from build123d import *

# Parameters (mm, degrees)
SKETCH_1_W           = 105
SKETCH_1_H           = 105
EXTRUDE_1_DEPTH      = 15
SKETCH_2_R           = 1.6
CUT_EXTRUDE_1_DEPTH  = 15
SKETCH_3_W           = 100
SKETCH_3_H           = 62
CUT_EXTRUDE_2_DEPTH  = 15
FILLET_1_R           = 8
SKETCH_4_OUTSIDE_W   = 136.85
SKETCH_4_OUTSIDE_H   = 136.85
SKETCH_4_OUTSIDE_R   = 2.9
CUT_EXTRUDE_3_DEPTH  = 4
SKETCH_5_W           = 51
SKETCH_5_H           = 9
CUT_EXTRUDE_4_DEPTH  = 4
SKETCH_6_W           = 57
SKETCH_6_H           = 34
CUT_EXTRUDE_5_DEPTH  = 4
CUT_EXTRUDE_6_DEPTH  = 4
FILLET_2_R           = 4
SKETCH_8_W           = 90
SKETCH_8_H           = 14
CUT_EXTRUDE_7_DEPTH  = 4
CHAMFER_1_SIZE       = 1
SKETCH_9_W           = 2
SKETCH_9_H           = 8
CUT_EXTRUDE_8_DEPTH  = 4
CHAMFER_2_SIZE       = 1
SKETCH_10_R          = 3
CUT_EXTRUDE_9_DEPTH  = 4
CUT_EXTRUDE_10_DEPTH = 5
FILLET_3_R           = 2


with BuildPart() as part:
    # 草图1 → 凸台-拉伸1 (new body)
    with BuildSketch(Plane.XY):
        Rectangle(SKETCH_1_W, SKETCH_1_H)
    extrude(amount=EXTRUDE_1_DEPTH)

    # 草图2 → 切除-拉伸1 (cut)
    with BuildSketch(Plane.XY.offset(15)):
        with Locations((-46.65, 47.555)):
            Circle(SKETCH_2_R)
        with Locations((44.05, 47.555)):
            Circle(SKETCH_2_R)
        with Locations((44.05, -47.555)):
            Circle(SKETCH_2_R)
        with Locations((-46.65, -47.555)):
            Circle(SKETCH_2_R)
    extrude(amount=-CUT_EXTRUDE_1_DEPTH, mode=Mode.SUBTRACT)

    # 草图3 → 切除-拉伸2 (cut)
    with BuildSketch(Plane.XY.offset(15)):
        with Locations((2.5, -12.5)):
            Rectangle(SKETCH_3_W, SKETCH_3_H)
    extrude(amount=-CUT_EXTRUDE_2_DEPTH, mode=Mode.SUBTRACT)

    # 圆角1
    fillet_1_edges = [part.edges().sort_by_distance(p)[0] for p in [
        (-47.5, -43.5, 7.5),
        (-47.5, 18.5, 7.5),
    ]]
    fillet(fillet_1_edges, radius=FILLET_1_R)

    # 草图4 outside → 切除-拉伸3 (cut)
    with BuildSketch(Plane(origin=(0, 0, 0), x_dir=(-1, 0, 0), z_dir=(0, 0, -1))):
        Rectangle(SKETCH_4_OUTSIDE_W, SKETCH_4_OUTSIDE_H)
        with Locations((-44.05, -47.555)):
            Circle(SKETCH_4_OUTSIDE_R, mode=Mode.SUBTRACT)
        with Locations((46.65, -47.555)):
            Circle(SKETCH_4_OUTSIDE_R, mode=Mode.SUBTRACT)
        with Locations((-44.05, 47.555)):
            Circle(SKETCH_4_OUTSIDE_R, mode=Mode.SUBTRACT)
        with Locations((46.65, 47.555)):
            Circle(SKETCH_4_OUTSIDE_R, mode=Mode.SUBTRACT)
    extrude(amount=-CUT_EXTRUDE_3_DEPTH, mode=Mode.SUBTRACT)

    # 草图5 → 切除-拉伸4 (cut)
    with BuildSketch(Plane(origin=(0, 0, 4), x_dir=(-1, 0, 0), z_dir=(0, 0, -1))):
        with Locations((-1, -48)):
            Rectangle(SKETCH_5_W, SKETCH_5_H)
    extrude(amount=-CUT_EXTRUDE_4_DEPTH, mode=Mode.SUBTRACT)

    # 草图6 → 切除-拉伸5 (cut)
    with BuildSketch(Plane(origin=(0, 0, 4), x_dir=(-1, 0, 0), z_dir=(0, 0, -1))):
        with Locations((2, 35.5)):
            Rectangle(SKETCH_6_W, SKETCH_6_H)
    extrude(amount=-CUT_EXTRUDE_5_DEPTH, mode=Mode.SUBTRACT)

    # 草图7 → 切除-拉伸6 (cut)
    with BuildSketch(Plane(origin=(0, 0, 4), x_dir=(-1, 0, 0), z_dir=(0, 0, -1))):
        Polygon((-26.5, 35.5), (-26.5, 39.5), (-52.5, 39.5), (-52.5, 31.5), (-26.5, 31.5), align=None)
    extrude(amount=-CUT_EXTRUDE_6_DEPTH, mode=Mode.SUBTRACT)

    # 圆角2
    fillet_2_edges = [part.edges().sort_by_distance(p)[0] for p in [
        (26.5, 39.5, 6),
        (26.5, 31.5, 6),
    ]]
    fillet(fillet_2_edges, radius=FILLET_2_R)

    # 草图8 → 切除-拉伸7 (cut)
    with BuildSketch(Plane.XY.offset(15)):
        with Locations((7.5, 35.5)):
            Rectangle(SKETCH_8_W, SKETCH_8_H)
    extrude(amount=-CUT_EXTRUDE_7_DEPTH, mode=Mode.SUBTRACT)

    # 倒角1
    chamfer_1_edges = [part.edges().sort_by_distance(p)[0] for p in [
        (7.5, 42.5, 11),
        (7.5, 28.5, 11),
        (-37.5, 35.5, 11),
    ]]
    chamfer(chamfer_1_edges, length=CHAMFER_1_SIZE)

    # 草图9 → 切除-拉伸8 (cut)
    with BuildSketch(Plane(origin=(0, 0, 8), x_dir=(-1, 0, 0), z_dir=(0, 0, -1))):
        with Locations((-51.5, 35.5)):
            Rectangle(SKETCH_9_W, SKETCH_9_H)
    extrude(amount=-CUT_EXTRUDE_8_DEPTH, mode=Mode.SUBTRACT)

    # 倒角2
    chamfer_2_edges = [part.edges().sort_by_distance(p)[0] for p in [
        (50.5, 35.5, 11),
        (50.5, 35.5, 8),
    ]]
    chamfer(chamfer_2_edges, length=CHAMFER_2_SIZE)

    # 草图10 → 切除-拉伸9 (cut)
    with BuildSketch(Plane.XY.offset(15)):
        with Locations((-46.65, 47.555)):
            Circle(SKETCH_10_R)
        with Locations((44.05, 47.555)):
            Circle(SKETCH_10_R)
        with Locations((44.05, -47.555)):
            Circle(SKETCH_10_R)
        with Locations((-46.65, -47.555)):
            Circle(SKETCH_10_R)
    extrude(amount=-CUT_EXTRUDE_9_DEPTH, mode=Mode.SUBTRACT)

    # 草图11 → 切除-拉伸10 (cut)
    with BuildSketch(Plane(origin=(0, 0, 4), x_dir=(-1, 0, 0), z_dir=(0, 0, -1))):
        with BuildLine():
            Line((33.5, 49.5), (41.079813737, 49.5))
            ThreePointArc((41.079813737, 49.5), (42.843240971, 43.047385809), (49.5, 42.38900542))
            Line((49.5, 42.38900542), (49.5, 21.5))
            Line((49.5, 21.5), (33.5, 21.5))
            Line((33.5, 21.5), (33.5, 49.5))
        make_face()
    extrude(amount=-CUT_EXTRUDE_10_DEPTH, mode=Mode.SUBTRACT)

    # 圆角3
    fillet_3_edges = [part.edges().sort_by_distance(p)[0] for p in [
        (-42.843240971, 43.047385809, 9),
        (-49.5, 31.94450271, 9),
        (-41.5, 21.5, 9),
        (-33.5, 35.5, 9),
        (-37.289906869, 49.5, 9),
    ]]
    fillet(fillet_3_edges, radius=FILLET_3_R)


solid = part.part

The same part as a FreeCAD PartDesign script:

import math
import FreeCAD as App
import Part
import Sketcher
Q = App.Units.Quantity


def edges_at(feature, points):
    """Names of the edges that pass closest to the given points."""
    edges = feature.Shape.Edges
    near = lambda p: min(range(len(edges)), key=lambda i: edges[i].distToShape(Part.Vertex(*p))[0])
    return sorted({f"Edge{near(p) + 1}" for p in points})


def add_polygon(sketch, points):
    """Adds a closed chain of lines whose ends are joined by coincident constraints."""
    first, n = sketch.GeometryCount, len(points)
    for a, b in zip(points, points[1:] + points[:1]):
        sketch.addGeometry(Part.LineSegment(App.Vector(*a, 0), App.Vector(*b, 0)), False)
    for i in range(n):
        sketch.addConstraint(Sketcher.Constraint("Coincident", first + i, 2, first + (i + 1) % n, 1))

doc = App.newDocument("Part")
body = doc.addObject("PartDesign::Body", "Body")

# Sketch on XY plane
sketch1 = body.newObject("Sketcher::SketchObject", "Sketch")
sketch1.AttachmentSupport = (doc.getObject("XY_Plane"), [""])
sketch1.MapMode = "FlatFace"
add_polygon(sketch1, [(-52.5, 52.5), (-52.5, -52.5), (52.5, -52.5), (52.5, 52.5)])  # lines 0-3
sketch1.addConstraint([
    Sketcher.Constraint("Vertical", 0),
    Sketcher.Constraint("Horizontal", 1),
    Sketcher.Constraint("Vertical", 2),
    Sketcher.Constraint("Horizontal", 3),
    Sketcher.Constraint("Symmetric", 0, 2, 2, 2, -1, 1),
    Sketcher.Constraint("Equal", 3, 0),
    Sketcher.Constraint("DistanceX", 1, 1, 1, 2, Q("105 mm")),
])
pad1 = body.newObject("PartDesign::Pad", "Pad")
pad1.Profile = sketch1
pad1.Length = 15

# Sketch on XY plane
sketch2 = body.newObject("Sketcher::SketchObject", "Sketch001")
sketch2.AttachmentSupport = (doc.getObject("XY_Plane"), [""])
sketch2.MapMode = "FlatFace"
sketch2.AttachmentOffset = App.Placement(App.Vector(0, 0, 15), App.Rotation())
sketch2.addGeometry([
    Part.Circle(App.Vector(-46.65, 47.555, 0), App.Vector(0, 0, 1), 1.6),
    Part.Circle(App.Vector(44.05, 47.555, 0), App.Vector(0, 0, 1), 1.6),
    Part.Circle(App.Vector(44.05, -47.555, 0), App.Vector(0, 0, 1), 1.6),
    Part.Circle(App.Vector(-46.65, -47.555, 0), App.Vector(0, 0, 1), 1.6),
], False)
sketch2.addConstraint([
    Sketcher.Constraint("Equal", 0, 1),
    Sketcher.Constraint("Equal", 1, 2),
    Sketcher.Constraint("Equal", 2, 3),
    Sketcher.Constraint("Symmetric", 1, 3, 2, 3, -1),
    Sketcher.Constraint("Symmetric", 0, 3, 3, 3, -1),
    Sketcher.Constraint("Horizontal", 0, 3, 1, 3),
    Sketcher.Constraint("Diameter", 0, Q("3.2 mm")),
    Sketcher.Constraint("DistanceX", 0, 3, 1, 3, Q("90.7 mm")),
    Sketcher.Constraint("DistanceX", 0, 3, -1, 1, Q("46.65 mm")),
    Sketcher.Constraint("DistanceY", 2, 3, 1, 3, Q("95.11 mm")),
])
pocket1 = body.newObject("PartDesign::Pocket", "Pocket")
pocket1.Profile = sketch2
pocket1.Length = 15

# Sketch on XY plane
sketch3 = body.newObject("Sketcher::SketchObject", "Sketch002")
sketch3.AttachmentSupport = (doc.getObject("XY_Plane"), [""])
sketch3.MapMode = "FlatFace"
sketch3.AttachmentOffset = App.Placement(App.Vector(0, 0, 15), App.Rotation())
add_polygon(sketch3, [(-47.5, 18.5), (-47.5, -43.5), (52.5, -43.5), (52.5, 18.5)])  # lines 0-3
sketch3.addConstraint([
    Sketcher.Constraint("Vertical", 0),
    Sketcher.Constraint("Horizontal", 1),
    Sketcher.Constraint("Vertical", 2),
    Sketcher.Constraint("Horizontal", 3),
    Sketcher.Constraint("DistanceX", 1, 1, 1, 2, Q("100 mm")),
    Sketcher.Constraint("DistanceY", 0, 2, 0, 1, Q("62 mm")),
    Sketcher.Constraint("DistanceX", 0, 2, -1, 1, Q("47.5 mm")),
    Sketcher.Constraint("DistanceY", 0, 2, -1, 1, Q("43.5 mm")),
])
pocket2 = body.newObject("PartDesign::Pocket", "Pocket001")
pocket2.Profile = sketch3
pocket2.Length = 15
doc.recompute()

fillet = body.newObject("PartDesign::Fillet", "Fillet")
fillet.Base = (pocket2, edges_at(pocket2, [(-47.5, -43.5, 7.5), (-47.5, 18.5, 7.5)]))
fillet.Radius = 8

# Sketch on XY plane
sketch4 = body.newObject("Sketcher::SketchObject", "Sketch003")
sketch4.AttachmentSupport = (doc.getObject("XY_Plane"), [""])
sketch4.MapMode = "FlatFace"
add_polygon(sketch4, [(68.425, 68.425), (68.425, -68.425), (-68.425, -68.425), (-68.425, 68.425)])  # lines 0-3
sketch4.addGeometry(Part.Circle(App.Vector(44.05, -47.555, 0), App.Vector(0, 0, 1), 2.9), False)  # 4
sketch4.addGeometry(Part.Circle(App.Vector(-46.65, -47.555, 0), App.Vector(0, 0, 1), 2.9), False)  # 5
sketch4.addGeometry(Part.Circle(App.Vector(44.05, 47.555, 0), App.Vector(0, 0, 1), 2.9), False)  # 6
sketch4.addGeometry(Part.Circle(App.Vector(-46.65, 47.555, 0), App.Vector(0, 0, 1), 2.9), False)  # 7
sketch4.addConstraint([
    Sketcher.Constraint("Vertical", 0),
    Sketcher.Constraint("Horizontal", 1),
    Sketcher.Constraint("Vertical", 2),
    Sketcher.Constraint("Horizontal", 3),
    Sketcher.Constraint("Equal", 4, 5),
    Sketcher.Constraint("Equal", 5, 6),
    Sketcher.Constraint("Equal", 6, 7),
    Sketcher.Constraint("Symmetric", 0, 2, 2, 2, -1, 1),
    Sketcher.Constraint("Symmetric", 4, 3, 6, 3, -1),
    Sketcher.Constraint("Symmetric", 5, 3, 7, 3, -1),
    Sketcher.Constraint("Horizontal", 4, 3, 5, 3),
    Sketcher.Constraint("Equal", 3, 0),
    Sketcher.Constraint("Diameter", 4, Q("5.8 mm")),
    Sketcher.Constraint("DistanceX", 1, 2, 1, 1, Q("136.85 mm")),
    Sketcher.Constraint("DistanceX", 5, 3, 4, 3, Q("90.7 mm")),
    Sketcher.Constraint("DistanceX", -1, 1, 4, 3, Q("44.05 mm")),
    Sketcher.Constraint("DistanceY", 4, 3, 6, 3, Q("95.11 mm")),
])
pocket3 = body.newObject("PartDesign::Pocket", "Pocket002")
pocket3.Profile = sketch4
pocket3.Length = 4
pocket3.Reversed = True

# Sketch on XY plane
sketch5 = body.newObject("Sketcher::SketchObject", "Sketch004")
sketch5.AttachmentSupport = (doc.getObject("XY_Plane"), [""])
sketch5.MapMode = "FlatFace"
sketch5.AttachmentOffset = App.Placement(App.Vector(0, 0, 4), App.Rotation())
add_polygon(sketch5, [(26.5, -43.5), (26.5, -52.5), (-24.5, -52.5), (-24.5, -43.5)])  # lines 0-3
sketch5.addConstraint([
    Sketcher.Constraint("Vertical", 0),
    Sketcher.Constraint("Horizontal", 1),
    Sketcher.Constraint("Vertical", 2),
    Sketcher.Constraint("Horizontal", 3),
    Sketcher.Constraint("DistanceX", 1, 2, 1, 1, Q("51 mm")),
    Sketcher.Constraint("DistanceY", 0, 2, 0, 1, Q("9 mm")),
    Sketcher.Constraint("DistanceX", -1, 1, 0, 2, Q("26.5 mm")),
    Sketcher.Constraint("DistanceY", 0, 2, -1, 1, Q("52.5 mm")),
])
pocket4 = body.newObject("PartDesign::Pocket", "Pocket003")
pocket4.Profile = sketch5
pocket4.Length = 4
pocket4.Reversed = True

# Sketch on XY plane
sketch6 = body.newObject("Sketcher::SketchObject", "Sketch005")
sketch6.AttachmentSupport = (doc.getObject("XY_Plane"), [""])
sketch6.MapMode = "FlatFace"
sketch6.AttachmentOffset = App.Placement(App.Vector(0, 0, 4), App.Rotation())
add_polygon(sketch6, [(26.5, 52.5), (26.5, 18.5), (-30.5, 18.5), (-30.5, 52.5)])  # lines 0-3
sketch6.addConstraint([
    Sketcher.Constraint("Vertical", 0),
    Sketcher.Constraint("Horizontal", 1),
    Sketcher.Constraint("Vertical", 2),
    Sketcher.Constraint("Horizontal", 3),
    Sketcher.Constraint("DistanceX", 1, 2, 1, 1, Q("57 mm")),
    Sketcher.Constraint("DistanceY", 0, 2, 0, 1, Q("34 mm")),
    Sketcher.Constraint("DistanceX", -1, 1, 0, 2, Q("26.5 mm")),
    Sketcher.Constraint("DistanceY", -1, 1, 0, 2, Q("18.5 mm")),
])
pocket5 = body.newObject("PartDesign::Pocket", "Pocket004")
pocket5.Profile = sketch6
pocket5.Length = 4
pocket5.Reversed = True

# Sketch on XY plane
sketch7 = body.newObject("Sketcher::SketchObject", "Sketch006")
sketch7.AttachmentSupport = (doc.getObject("XY_Plane"), [""])
sketch7.MapMode = "FlatFace"
sketch7.AttachmentOffset = App.Placement(App.Vector(0, 0, 4), App.Rotation())
add_polygon(sketch7, [(26.5, 39.5), (52.5, 39.5), (52.5, 31.5), (26.5, 31.5)])  # lines 0-3
sketch7.addConstraint([
    Sketcher.Constraint("Horizontal", 0),
    Sketcher.Constraint("Vertical", 1),
    Sketcher.Constraint("Horizontal", 2),
    Sketcher.Constraint("Vertical", 3),
    Sketcher.Constraint("DistanceX", 0, 1, 0, 2, Q("26 mm")),
    Sketcher.Constraint("DistanceY", 1, 2, 1, 1, Q("8 mm")),
    Sketcher.Constraint("DistanceX", -1, 1, 0, 2, Q("52.5 mm")),
    Sketcher.Constraint("DistanceY", -1, 1, 0, 2, Q("39.5 mm")),
])
pocket6 = body.newObject("PartDesign::Pocket", "Pocket005")
pocket6.Profile = sketch7
pocket6.Length = 4
pocket6.Reversed = True
doc.recompute()

fillet2 = body.newObject("PartDesign::Fillet", "Fillet001")
fillet2.Base = (pocket6, edges_at(pocket6, [(26.5, 39.5, 6), (26.5, 31.5, 6)]))
fillet2.Radius = 4

# Sketch on XY plane
sketch8 = body.newObject("Sketcher::SketchObject", "Sketch007")
sketch8.AttachmentSupport = (doc.getObject("XY_Plane"), [""])
sketch8.MapMode = "FlatFace"
sketch8.AttachmentOffset = App.Placement(App.Vector(0, 0, 15), App.Rotation())
add_polygon(sketch8, [(-37.5, 42.5), (-37.5, 28.5), (52.5, 28.5), (52.5, 42.5)])  # lines 0-3
sketch8.addConstraint([
    Sketcher.Constraint("Vertical", 0),
    Sketcher.Constraint("Horizontal", 1),
    Sketcher.Constraint("Vertical", 2),
    Sketcher.Constraint("Horizontal", 3),
    Sketcher.Constraint("DistanceX", 1, 1, 1, 2, Q("90 mm")),
    Sketcher.Constraint("DistanceY", 0, 2, 0, 1, Q("14 mm")),
    Sketcher.Constraint("DistanceX", 0, 2, -1, 1, Q("37.5 mm")),
    Sketcher.Constraint("DistanceY", -1, 1, 0, 2, Q("28.5 mm")),
])
pocket7 = body.newObject("PartDesign::Pocket", "Pocket006")
pocket7.Profile = sketch8
pocket7.Length = 4
doc.recompute()

chamfer = body.newObject("PartDesign::Chamfer", "Chamfer")
chamfer.Base = (pocket7, edges_at(pocket7, [(7.5, 42.5, 11), (7.5, 28.5, 11), (-37.5, 35.5, 11)]))
chamfer.Size = 1

# Sketch on XY plane
sketch9 = body.newObject("Sketcher::SketchObject", "Sketch008")
sketch9.AttachmentSupport = (doc.getObject("XY_Plane"), [""])
sketch9.MapMode = "FlatFace"
sketch9.AttachmentOffset = App.Placement(App.Vector(0, 0, 8), App.Rotation())
add_polygon(sketch9, [(52.5, 39.5), (52.5, 31.5), (50.5, 31.5), (50.5, 39.5)])  # lines 0-3
sketch9.addConstraint([
    Sketcher.Constraint("Vertical", 0),
    Sketcher.Constraint("Horizontal", 1),
    Sketcher.Constraint("Vertical", 2),
    Sketcher.Constraint("Horizontal", 3),
    Sketcher.Constraint("DistanceX", 1, 2, 1, 1, Q("2 mm")),
    Sketcher.Constraint("DistanceY", 0, 2, 0, 1, Q("8 mm")),
    Sketcher.Constraint("DistanceX", -1, 1, 0, 2, Q("52.5 mm")),
    Sketcher.Constraint("DistanceY", -1, 1, 0, 2, Q("31.5 mm")),
])
pocket8 = body.newObject("PartDesign::Pocket", "Pocket007")
pocket8.Profile = sketch9
pocket8.Length = 4
pocket8.Reversed = True
doc.recompute()

chamfer2 = body.newObject("PartDesign::Chamfer", "Chamfer001")
chamfer2.Base = (pocket8, edges_at(pocket8, [(50.5, 35.5, 11), (50.5, 35.5, 8)]))
chamfer2.Size = 1

# Sketch on XY plane
sketch10 = body.newObject("Sketcher::SketchObject", "Sketch009")
sketch10.AttachmentSupport = (doc.getObject("XY_Plane"), [""])
sketch10.MapMode = "FlatFace"
sketch10.AttachmentOffset = App.Placement(App.Vector(0, 0, 15), App.Rotation())
sketch10.addGeometry([
    Part.Circle(App.Vector(-46.65, 47.555, 0), App.Vector(0, 0, 1), 3),
    Part.Circle(App.Vector(44.05, 47.555, 0), App.Vector(0, 0, 1), 3),
    Part.Circle(App.Vector(44.05, -47.555, 0), App.Vector(0, 0, 1), 3),
    Part.Circle(App.Vector(-46.65, -47.555, 0), App.Vector(0, 0, 1), 3),
], False)
sketch10.addConstraint([
    Sketcher.Constraint("Equal", 0, 1),
    Sketcher.Constraint("Equal", 1, 2),
    Sketcher.Constraint("Equal", 2, 3),
    Sketcher.Constraint("Symmetric", 1, 3, 2, 3, -1),
    Sketcher.Constraint("Symmetric", 0, 3, 3, 3, -1),
    Sketcher.Constraint("Horizontal", 0, 3, 1, 3),
    Sketcher.Constraint("Diameter", 0, Q("6 mm")),
    Sketcher.Constraint("DistanceX", 0, 3, 1, 3, Q("90.7 mm")),
    Sketcher.Constraint("DistanceX", 0, 3, -1, 1, Q("46.65 mm")),
    Sketcher.Constraint("DistanceY", 2, 3, 1, 3, Q("95.11 mm")),
])
pocket9 = body.newObject("PartDesign::Pocket", "Pocket008")
pocket9.Profile = sketch10
pocket9.Length = 4

# Sketch on XY plane
sketch11 = body.newObject("Sketcher::SketchObject", "Sketch010")
sketch11.AttachmentSupport = (doc.getObject("XY_Plane"), [""])
sketch11.MapMode = "FlatFace"
sketch11.AttachmentOffset = App.Placement(App.Vector(0, 0, 4), App.Rotation())
sketch11.addGeometry([
    Part.LineSegment(App.Vector(-41.079814, 49.5, 0), App.Vector(-33.5, 49.5, 0)),  # 0
    Part.LineSegment(App.Vector(-33.5, 49.5, 0), App.Vector(-33.5, 21.5, 0)),  # 1
    Part.LineSegment(App.Vector(-33.5, 21.5, 0), App.Vector(-49.5, 21.5, 0)),  # 2
    Part.LineSegment(App.Vector(-49.5, 21.5, 0), App.Vector(-49.5, 42.389005, 0)),  # 3
    Part.ArcOfCircle(Part.Circle(App.Vector(-46.65, 47.555, 0), App.Vector(0, 0, 1), 5.9), math.radians(-118.884848), math.radians(19.248202)),  # 4
], False)
sketch11.addConstraint([
    Sketcher.Constraint("Coincident", 0, 2, 1, 1),
    Sketcher.Constraint("Coincident", 1, 2, 2, 1),
    Sketcher.Constraint("Coincident", 2, 2, 3, 1),
    Sketcher.Constraint("Coincident", 3, 2, 4, 1),
    Sketcher.Constraint("Coincident", 4, 2, 0, 1),
    Sketcher.Constraint("Horizontal", 0),
    Sketcher.Constraint("Vertical", 1),
    Sketcher.Constraint("Horizontal", 2),
    Sketcher.Constraint("Vertical", 3),
    Sketcher.Constraint("Radius", 4, Q("5.9 mm")),
    Sketcher.Constraint("DistanceX", 2, 2, 2, 1, Q("16 mm")),
    Sketcher.Constraint("DistanceY", 1, 2, 1, 1, Q("28 mm")),
    Sketcher.Constraint("DistanceX", 0, 2, -1, 1, Q("33.5 mm")),
    Sketcher.Constraint("DistanceY", -1, 1, 0, 2, Q("49.5 mm")),
    Sketcher.Constraint("DistanceX", 4, 3, -1, 1, Q("46.65 mm")),
    Sketcher.Constraint("DistanceY", -1, 1, 4, 3, Q("47.555 mm")),
])
pocket10 = body.newObject("PartDesign::Pocket", "Pocket009")
pocket10.Profile = sketch11
pocket10.Length = 5
pocket10.Reversed = True
doc.recompute()

fillet3 = body.newObject("PartDesign::Fillet", "Fillet002")
fillet3.Base = (pocket10, edges_at(pocket10, [
    (-42.843, 43.047, 9),
    (-49.5, 31.945, 9),
    (-41.5, 21.5, 9),
    (-33.5, 35.5, 9),
    (-37.29, 49.5, 9),
]))
fillet3.Radius = 2

doc.recompute()
